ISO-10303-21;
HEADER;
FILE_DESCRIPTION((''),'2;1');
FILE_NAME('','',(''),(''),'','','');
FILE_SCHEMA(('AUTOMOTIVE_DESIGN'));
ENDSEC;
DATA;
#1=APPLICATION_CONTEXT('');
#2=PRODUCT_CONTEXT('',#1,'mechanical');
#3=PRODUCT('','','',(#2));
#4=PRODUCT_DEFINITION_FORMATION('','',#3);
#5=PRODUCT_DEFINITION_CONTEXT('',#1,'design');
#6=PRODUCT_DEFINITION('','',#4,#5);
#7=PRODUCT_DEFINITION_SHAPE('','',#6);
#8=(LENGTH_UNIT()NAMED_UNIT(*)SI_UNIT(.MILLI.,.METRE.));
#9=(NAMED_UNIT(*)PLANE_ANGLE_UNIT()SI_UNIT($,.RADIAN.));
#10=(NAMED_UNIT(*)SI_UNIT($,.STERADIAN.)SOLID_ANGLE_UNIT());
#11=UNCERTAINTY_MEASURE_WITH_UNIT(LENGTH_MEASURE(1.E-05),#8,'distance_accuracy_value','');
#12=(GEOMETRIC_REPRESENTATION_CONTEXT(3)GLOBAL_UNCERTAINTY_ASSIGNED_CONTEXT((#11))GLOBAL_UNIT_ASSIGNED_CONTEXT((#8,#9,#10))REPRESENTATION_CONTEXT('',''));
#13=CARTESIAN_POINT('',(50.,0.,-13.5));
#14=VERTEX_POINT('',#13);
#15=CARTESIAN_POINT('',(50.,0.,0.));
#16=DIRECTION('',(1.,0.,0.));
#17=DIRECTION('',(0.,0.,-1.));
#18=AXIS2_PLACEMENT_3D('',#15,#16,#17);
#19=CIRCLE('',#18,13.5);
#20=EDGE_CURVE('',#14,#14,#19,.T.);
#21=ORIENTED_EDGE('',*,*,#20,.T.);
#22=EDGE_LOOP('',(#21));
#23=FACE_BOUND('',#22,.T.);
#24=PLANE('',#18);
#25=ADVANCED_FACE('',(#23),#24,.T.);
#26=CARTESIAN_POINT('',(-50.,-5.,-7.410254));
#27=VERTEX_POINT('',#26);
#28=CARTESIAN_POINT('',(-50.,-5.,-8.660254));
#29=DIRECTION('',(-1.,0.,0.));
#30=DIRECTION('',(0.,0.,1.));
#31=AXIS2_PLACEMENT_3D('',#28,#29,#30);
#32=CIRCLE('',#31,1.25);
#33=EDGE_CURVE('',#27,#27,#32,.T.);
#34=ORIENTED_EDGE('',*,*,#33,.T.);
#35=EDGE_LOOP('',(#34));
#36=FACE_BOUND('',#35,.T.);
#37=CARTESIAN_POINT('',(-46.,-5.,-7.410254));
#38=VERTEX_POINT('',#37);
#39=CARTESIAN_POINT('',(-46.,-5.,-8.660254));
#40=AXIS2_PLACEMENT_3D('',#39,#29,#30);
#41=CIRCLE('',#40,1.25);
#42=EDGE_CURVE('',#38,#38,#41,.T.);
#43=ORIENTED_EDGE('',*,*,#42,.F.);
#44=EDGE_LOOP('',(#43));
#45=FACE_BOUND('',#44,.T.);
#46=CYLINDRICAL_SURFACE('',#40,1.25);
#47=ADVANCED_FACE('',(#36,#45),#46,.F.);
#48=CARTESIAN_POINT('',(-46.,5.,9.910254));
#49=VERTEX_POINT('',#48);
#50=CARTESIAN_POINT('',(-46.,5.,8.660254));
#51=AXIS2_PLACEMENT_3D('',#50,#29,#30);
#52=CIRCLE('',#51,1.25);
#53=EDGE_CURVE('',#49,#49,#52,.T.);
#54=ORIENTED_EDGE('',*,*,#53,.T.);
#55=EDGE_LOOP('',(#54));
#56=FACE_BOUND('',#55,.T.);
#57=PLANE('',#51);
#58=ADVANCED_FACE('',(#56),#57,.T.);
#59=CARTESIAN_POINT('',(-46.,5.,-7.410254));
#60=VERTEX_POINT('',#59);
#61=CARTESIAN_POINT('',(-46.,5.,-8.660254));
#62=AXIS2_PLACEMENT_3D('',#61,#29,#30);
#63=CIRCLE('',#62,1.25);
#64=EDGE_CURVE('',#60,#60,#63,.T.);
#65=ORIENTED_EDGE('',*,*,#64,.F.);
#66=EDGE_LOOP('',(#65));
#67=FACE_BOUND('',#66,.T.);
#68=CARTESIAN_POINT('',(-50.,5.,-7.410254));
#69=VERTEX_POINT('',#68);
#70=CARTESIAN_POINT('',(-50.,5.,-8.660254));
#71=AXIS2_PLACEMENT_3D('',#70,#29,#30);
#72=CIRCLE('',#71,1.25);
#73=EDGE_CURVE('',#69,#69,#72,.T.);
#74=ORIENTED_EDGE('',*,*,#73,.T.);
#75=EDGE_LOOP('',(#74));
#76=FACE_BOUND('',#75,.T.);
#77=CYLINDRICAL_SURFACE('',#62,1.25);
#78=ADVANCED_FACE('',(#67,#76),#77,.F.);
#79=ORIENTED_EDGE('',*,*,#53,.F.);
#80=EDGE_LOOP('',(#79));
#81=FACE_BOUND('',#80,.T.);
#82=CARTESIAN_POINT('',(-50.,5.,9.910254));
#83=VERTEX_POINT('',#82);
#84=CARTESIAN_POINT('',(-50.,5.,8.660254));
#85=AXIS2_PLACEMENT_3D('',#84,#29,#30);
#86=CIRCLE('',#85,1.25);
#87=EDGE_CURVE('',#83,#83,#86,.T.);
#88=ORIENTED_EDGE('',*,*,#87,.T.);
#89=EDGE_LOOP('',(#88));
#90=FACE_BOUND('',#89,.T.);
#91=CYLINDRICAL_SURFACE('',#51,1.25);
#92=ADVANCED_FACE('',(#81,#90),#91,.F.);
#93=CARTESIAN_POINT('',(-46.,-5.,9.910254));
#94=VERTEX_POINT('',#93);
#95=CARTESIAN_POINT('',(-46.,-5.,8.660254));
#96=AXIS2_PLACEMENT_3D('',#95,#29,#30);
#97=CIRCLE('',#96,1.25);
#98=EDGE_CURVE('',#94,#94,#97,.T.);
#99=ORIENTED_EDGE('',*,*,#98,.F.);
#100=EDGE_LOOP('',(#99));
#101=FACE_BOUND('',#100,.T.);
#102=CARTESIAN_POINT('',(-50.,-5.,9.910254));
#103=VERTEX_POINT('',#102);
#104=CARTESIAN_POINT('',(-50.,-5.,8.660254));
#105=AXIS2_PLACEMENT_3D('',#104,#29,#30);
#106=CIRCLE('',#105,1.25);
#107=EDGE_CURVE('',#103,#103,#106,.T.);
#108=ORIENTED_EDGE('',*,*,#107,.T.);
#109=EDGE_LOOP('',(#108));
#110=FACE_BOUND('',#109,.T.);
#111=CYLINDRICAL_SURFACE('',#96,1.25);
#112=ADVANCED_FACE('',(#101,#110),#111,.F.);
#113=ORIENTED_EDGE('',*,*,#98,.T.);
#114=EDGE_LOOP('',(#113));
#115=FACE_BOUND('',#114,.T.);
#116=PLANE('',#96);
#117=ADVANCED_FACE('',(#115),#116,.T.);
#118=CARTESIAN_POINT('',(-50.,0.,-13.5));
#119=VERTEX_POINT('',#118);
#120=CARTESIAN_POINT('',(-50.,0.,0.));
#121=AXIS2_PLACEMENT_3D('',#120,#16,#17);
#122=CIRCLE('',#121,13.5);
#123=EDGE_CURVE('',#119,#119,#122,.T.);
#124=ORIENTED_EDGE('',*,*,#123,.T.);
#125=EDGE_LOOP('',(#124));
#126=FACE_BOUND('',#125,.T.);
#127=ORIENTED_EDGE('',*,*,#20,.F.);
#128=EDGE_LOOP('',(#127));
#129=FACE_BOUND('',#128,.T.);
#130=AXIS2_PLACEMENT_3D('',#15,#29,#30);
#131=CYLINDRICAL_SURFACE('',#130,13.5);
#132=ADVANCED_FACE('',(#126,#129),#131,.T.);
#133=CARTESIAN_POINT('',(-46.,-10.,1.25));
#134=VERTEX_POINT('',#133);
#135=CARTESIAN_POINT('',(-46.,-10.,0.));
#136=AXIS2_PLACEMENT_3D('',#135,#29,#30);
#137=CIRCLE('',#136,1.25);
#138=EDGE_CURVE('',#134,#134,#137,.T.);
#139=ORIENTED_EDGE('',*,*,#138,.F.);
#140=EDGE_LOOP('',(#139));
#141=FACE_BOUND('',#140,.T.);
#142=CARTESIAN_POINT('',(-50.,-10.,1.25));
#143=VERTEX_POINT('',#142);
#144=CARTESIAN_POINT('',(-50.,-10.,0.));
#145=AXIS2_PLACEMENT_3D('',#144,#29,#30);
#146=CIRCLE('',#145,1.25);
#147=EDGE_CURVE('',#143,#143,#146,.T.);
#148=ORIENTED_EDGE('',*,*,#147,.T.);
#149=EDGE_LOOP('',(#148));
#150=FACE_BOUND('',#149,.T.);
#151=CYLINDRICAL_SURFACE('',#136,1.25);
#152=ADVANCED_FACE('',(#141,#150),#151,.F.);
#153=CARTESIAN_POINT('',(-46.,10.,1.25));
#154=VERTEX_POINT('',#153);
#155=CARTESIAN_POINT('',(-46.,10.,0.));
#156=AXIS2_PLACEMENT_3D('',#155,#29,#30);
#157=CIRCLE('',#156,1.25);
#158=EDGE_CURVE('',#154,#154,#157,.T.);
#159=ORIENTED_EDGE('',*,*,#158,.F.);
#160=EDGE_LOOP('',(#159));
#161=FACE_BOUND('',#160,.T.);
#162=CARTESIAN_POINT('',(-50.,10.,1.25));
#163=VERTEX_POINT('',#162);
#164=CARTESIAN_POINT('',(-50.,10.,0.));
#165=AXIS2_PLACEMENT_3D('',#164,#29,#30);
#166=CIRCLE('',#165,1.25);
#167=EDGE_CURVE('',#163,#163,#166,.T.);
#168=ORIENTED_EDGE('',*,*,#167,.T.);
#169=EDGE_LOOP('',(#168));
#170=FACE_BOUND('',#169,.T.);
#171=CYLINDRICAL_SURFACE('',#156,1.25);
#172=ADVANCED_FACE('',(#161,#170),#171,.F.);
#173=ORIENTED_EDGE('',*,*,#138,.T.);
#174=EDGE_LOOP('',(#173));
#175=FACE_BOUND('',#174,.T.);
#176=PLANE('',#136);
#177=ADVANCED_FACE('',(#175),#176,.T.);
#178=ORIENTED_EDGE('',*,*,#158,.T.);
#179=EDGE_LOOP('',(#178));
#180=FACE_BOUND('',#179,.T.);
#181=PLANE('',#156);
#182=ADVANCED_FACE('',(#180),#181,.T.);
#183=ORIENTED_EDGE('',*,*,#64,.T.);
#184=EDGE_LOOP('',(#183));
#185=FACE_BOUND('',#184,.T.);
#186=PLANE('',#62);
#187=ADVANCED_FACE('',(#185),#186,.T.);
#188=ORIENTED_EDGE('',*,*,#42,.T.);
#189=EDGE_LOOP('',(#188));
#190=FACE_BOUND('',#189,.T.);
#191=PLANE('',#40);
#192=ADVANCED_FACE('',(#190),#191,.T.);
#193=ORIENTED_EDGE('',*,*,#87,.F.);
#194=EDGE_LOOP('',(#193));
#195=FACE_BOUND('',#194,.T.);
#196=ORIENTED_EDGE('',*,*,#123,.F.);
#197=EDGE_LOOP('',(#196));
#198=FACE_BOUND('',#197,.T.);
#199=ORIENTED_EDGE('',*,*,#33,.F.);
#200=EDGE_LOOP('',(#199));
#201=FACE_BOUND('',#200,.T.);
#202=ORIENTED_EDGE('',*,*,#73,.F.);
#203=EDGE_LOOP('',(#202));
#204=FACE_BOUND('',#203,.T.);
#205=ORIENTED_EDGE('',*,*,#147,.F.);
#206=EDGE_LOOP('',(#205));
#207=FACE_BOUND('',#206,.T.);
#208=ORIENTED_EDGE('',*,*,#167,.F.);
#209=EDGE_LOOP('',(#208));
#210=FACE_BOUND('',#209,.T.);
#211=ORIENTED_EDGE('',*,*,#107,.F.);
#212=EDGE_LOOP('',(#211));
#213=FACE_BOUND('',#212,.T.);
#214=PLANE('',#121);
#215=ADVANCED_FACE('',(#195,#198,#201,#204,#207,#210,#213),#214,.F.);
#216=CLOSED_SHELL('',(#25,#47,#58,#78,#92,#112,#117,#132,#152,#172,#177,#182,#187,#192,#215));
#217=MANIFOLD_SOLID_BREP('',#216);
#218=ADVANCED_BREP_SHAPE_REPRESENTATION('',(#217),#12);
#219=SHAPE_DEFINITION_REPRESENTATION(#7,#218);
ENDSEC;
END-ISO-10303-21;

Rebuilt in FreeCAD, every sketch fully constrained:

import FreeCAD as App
import Part
import Sketcher
from FreeCAD import Vector
Q = App.Units.Quantity

doc = App.newDocument("Part")
params = doc.addObject("Spreadsheet::Sheet", "Params")
for row, (alias, value) in enumerate([
    ("sketch1_diameter", "27 mm"),
    ("pad1_length", "100 mm"),
    ("sketch2_diameter", "2.5 mm"),
    ("pocket1_length", "4 mm"),
], start=1):
    params.set(f"A{row}", alias)
    params.set(f"B{row}", "=" + value)
    params.setAlias(f"B{row}", alias)

body = doc.addObject("PartDesign::Body", "Body")

# Sketch on YZ plane
sketch1 = doc.addObject("Sketcher::SketchObject", "Sketch")
body.addObject(sketch1)
sketch1.AttachmentSupport = (doc.YZ_Plane, [""])
sketch1.MapMode = "FlatFace"
sketch1.addGeometry(Part.Circle(Vector(0, 0, 0), Vector(0, 0, 1), 14), False)
sketch1.addConstraint([
    Sketcher.Constraint("Coincident", 0, 3, -1, 1),
    Sketcher.Constraint("Diameter", 0, Q("27 mm")),
])
sketch1.setExpression("Constraints[1]", "Params.sketch1_diameter")
pad1 = doc.addObject("PartDesign::Pad", "Pad")
body.addObject(pad1)
pad1.Profile = sketch1
pad1.setExpression("Length", "Params.pad1_length")
pad1.Midplane = True

# Sketch on YZ plane
sketch2 = doc.addObject("Sketcher::SketchObject", "Sketch001")
body.addObject(sketch2)
sketch2.AttachmentSupport = (doc.YZ_Plane, [""])
sketch2.MapMode = "FlatFace"
sketch2.AttachmentOffset = App.Placement(Vector(0, 0, -50), App.Rotation())
sketch2.addGeometry([
    Part.Circle(Vector(10, 0, 0), Vector(0, 0, 1), 1.2),  # 0
    Part.Circle(Vector(5, 8.7, 0), Vector(0, 0, 1), 1.2),  # 1
    Part.Circle(Vector(-5, 8.7, 0), Vector(0, 0, 1), 1.2),  # 2
    Part.Circle(Vector(-10, 0, 0), Vector(0, 0, 1), 1.2),  # 3
    Part.Circle(Vector(-5, -8.7, 0), Vector(0, 0, 1), 1.2),  # 4
    Part.Circle(Vector(5, -8.7, 0), Vector(0, 0, 1), 1.2),  # 5
], False)
sketch2.addConstraint([
    Sketcher.Constraint("Equal", 0, 1),
    Sketcher.Constraint("Equal", 1, 2),
    Sketcher.Constraint("Equal", 2, 3),
    Sketcher.Constraint("Equal", 3, 4),
    Sketcher.Constraint("Equal", 4, 5),
    Sketcher.Constraint("Symmetric", 0, 3, 3, 3, -1, 1),
    Sketcher.Constraint("Symmetric", 1, 3, 4, 3, -1, 1),
    Sketcher.Constraint("Symmetric", 2, 3, 5, 3, -1, 1),
    Sketcher.Constraint("Symmetric", 1, 3, 2, 3, -2),
    Sketcher.Constraint("PointOnObject", 0, 3, -1),
    Sketcher.Constraint("Diameter", 0, Q("2.5 mm")),
    Sketcher.Constraint("DistanceX", -1, 1, 0, 3, Q("10 mm")),
    Sketcher.Constraint("DistanceX", -1, 1, 1, 3, Q("5 mm")),
    Sketcher.Constraint("DistanceY", 4, 3, 2, 3, Q("17.320508 mm")),
])
sketch2.setExpression("Constraints[10]", "Params.sketch2_diameter")
pocket1 = doc.addObject("PartDesign::Pocket", "Pocket")
body.addObject(pocket1)
pocket1.Profile = sketch2
pocket1.setExpression("Length", "Params.pocket1_length")
pocket1.Reversed = True

doc.recompute()
